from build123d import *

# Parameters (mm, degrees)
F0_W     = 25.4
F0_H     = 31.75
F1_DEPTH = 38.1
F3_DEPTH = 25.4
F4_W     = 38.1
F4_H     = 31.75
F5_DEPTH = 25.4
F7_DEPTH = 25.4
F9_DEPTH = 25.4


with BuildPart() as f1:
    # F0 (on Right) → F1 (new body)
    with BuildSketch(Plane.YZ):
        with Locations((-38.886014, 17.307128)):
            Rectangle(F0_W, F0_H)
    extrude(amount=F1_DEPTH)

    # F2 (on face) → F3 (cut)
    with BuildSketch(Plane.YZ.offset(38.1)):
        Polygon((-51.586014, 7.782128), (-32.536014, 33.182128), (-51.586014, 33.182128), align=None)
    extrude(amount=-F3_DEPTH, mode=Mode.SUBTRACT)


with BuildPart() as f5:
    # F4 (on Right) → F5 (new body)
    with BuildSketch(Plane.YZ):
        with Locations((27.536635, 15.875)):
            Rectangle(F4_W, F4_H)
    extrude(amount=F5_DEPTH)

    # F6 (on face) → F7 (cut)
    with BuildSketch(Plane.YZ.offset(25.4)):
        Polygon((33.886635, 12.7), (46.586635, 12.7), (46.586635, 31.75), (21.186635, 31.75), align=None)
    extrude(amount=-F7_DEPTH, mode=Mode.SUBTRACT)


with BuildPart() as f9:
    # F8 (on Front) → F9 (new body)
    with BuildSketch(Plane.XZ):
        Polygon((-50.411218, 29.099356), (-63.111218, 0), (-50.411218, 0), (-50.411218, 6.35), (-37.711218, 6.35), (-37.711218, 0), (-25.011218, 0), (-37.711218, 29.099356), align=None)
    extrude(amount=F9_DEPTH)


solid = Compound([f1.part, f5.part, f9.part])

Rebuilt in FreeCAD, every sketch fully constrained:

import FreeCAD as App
import Part
import Sketcher
from FreeCAD import Vector
Q = App.Units.Quantity

doc = App.newDocument("Part")
body = doc.addObject("PartDesign::Body", "Body")

# Sketch on YZ plane
sketch1 = body.newObject("Sketcher::SketchObject", "Sketch")
sketch1.AttachmentSupport = (doc.getObject("YZ_Plane"), [""])
sketch1.MapMode = "FlatFace"
sketch1.addGeometry([
    Part.LineSegment(Vector(-51.586014, 33.182128, 0), Vector(-51.586014, 1.432128, 0)),
    Part.LineSegment(Vector(-51.586014, 1.432128, 0), Vector(-26.186014, 1.432128, 0)),
    Part.LineSegment(Vector(-26.186014, 1.432128, 0), Vector(-26.186014, 33.182128, 0)),
    Part.LineSegment(Vector(-26.186014, 33.182128, 0), Vector(-51.586014, 33.182128, 0)),
], False)
sketch1.addConstraint([
    Sketcher.Constraint("Coincident", 0, 2, 1, 1),
    Sketcher.Constraint("Coincident", 1, 2, 2, 1),
    Sketcher.Constraint("Coincident", 2, 2, 3, 1),
    Sketcher.Constraint("Coincident", 3, 2, 0, 1),
    Sketcher.Constraint("Vertical", 0),
    Sketcher.Constraint("Horizontal", 1),
    Sketcher.Constraint("Vertical", 2),
    Sketcher.Constraint("Horizontal", 3),
    Sketcher.Constraint("DistanceX", 1, 1, 1, 2, Q("1 in")),
    Sketcher.Constraint("DistanceY", 0, 2, 0, 1, Q("1.25 in")),
    Sketcher.Constraint("DistanceY", -1, 1, 0, 2, 1.432128),
    Sketcher.Constraint("DistanceX", 0, 2, -1, 1, 51.586014),
])
pad1 = body.newObject("PartDesign::Pad", "Pad")
pad1.Profile = sketch1
pad1.Length = Q("1.5 in")

# Sketch on YZ plane
sketch2 = body.newObject("Sketcher::SketchObject", "Sketch001")
sketch2.AttachmentSupport = (doc.getObject("YZ_Plane"), [""])
sketch2.MapMode = "FlatFace"
sketch2.AttachmentOffset = App.Placement(Vector(0, 0, 1.5 * 25.4), App.Rotation())
sketch2.addGeometry([
    Part.LineSegment(Vector(-51.586014, 7.782128, 0), Vector(-32.536014, 33.182128, 0)),
    Part.LineSegment(Vector(-32.536014, 33.182128, 0), Vector(-51.586014, 33.182128, 0)),
    Part.LineSegment(Vector(-51.586014, 33.182128, 0), Vector(-51.586014, 7.782128, 0)),
], False)
sketch2.addConstraint([
    Sketcher.Constraint("Coincident", 0, 2, 1, 1),
    Sketcher.Constraint("Coincident", 1, 2, 2, 1),
    Sketcher.Constraint("Coincident", 2, 2, 0, 1),
    Sketcher.Constraint("Horizontal", 1),
    Sketcher.Constraint("Vertical", 2),
    Sketcher.Constraint("DistanceY", 2, 2, 2, 1, Q("1 in")),
    Sketcher.Constraint("DistanceX", 1, 2, 1, 1, Q("0.75 in")),
    Sketcher.Constraint("DistanceX", 0, 2, -1, 1, 32.536014),
    Sketcher.Constraint("DistanceY", -1, 1, 0, 2, 33.182128),
])
pocket1 = body.newObject("PartDesign::Pocket", "Pocket")
pocket1.Profile = sketch2
pocket1.Length = Q("1 in")
body2 = doc.addObject("PartDesign::Body", "Body001")

# Sketch on YZ plane
sketch3 = body2.newObject("Sketcher::SketchObject", "Sketch002")
sketch3.AttachmentSupport = (doc.getObject("YZ_Plane001"), [""])
sketch3.MapMode = "FlatFace"
sketch3.addGeometry([
    Part.LineSegment(Vector(8.486635, 31.75, 0), Vector(8.486635, 0, 0)),
    Part.LineSegment(Vector(8.486635, 0, 0), Vector(46.586635, 0, 0)),
    Part.LineSegment(Vector(46.586635, 0, 0), Vector(46.586635, 31.75, 0)),
    Part.LineSegment(Vector(46.586635, 31.75, 0), Vector(8.486635, 31.75, 0)),
], False)
sketch3.addConstraint([
    Sketcher.Constraint("Coincident", 0, 2, 1, 1),
    Sketcher.Constraint("Coincident", 1, 2, 2, 1),
    Sketcher.Constraint("Coincident", 2, 2, 3, 1),
    Sketcher.Constraint("Coincident", 3, 2, 0, 1),
    Sketcher.Constraint("Vertical", 0),
    Sketcher.Constraint("Horizontal", 1),
    Sketcher.Constraint("Vertical", 2),
    Sketcher.Constraint("Horizontal", 3),
    Sketcher.Constraint("PointOnObject", 0, 2, -1),
    Sketcher.Constraint("DistanceX", 1, 1, 1, 2, Q("1.5 in")),
    Sketcher.Constraint("DistanceY", 0, 2, 0, 1, Q("1.25 in")),
    Sketcher.Constraint("DistanceX", -1, 1, 0, 2, 8.486635),
])
pad2 = body2.newObject("PartDesign::Pad", "Pad001")
pad2.Profile = sketch3
pad2.Length = Q("1 in")

# Sketch on YZ plane
sketch4 = body2.newObject("Sketcher::SketchObject", "Sketch003")
sketch4.AttachmentSupport = (doc.getObject("YZ_Plane001"), [""])
sketch4.MapMode = "FlatFace"
sketch4.AttachmentOffset = App.Placement(Vector(0, 0, 1 * 25.4), App.Rotation())
sketch4.addGeometry([
    Part.LineSegment(Vector(33.886635, 12.7, 0), Vector(46.586635, 12.7, 0)),
    Part.LineSegment(Vector(46.586635, 12.7, 0), Vector(46.586635, 31.75, 0)),
    Part.LineSegment(Vector(46.586635, 31.75, 0), Vector(21.186635, 31.75, 0)),
    Part.LineSegment(Vector(21.186635, 31.75, 0), Vector(33.886635, 12.7, 0)),
], False)
sketch4.addConstraint([
    Sketcher.Constraint("Coincident", 0, 2, 1, 1),
    Sketcher.Constraint("Coincident", 1, 2, 2, 1),
    Sketcher.Constraint("Coincident", 2, 2, 3, 1),
    Sketcher.Constraint("Coincident", 3, 2, 0, 1),
    Sketcher.Constraint("Horizontal", 0),
    Sketcher.Constraint("Vertical", 1),
    Sketcher.Constraint("Horizontal", 2),
    Sketcher.Constraint("DistanceX", 2, 2, 2, 1, Q("1 in")),
    Sketcher.Constraint("DistanceX", 0, 1, 0, 2, Q("0.5 in")),
    Sketcher.Constraint("DistanceY", 1, 1, 1, 2, Q("0.75 in")),
    Sketcher.Constraint("DistanceY", -1, 1, 0, 2, Q("0.5 in")),
    Sketcher.Constraint("DistanceX", -1, 1, 0, 2, 46.586635),
])
pocket2 = body2.newObject("PartDesign::Pocket", "Pocket001")
pocket2.Profile = sketch4
pocket2.Length = Q("1 in")
body3 = doc.addObject("PartDesign::Body", "Body002")

# Sketch on XZ plane
sketch5 = body3.newObject("Sketcher::SketchObject", "Sketch004")
sketch5.AttachmentSupport = (doc.getObject("XZ_Plane002"), [""])
sketch5.MapMode = "FlatFace"
sketch5.addGeometry([
    Part.LineSegment(Vector(-50.411218, 29.099356, 0), Vector(-63.111218, 0, 0)),  # 0
    Part.LineSegment(Vector(-63.111218, 0, 0), Vector(-50.411218, 0, 0)),  # 1
    Part.LineSegment(Vector(-50.411218, 0, 0), Vector(-50.411218, 6.35, 0)),  # 2
    Part.LineSegment(Vector(-50.411218, 6.35, 0), Vector(-37.711218, 6.35, 0)),  # 3
    Part.LineSegment(Vector(-37.711218, 6.35, 0), Vector(-37.711218, 0, 0)),  # 4
    Part.LineSegment(Vector(-37.711218, 0, 0), Vector(-25.011218, 0, 0)),  # 5
    Part.LineSegment(Vector(-25.011218, 0, 0), Vector(-37.711218, 29.099356, 0)),  # 6
    Part.LineSegment(Vector(-37.711218, 29.099356, 0), Vector(-50.411218, 29.099356, 0)),  # 7
], False)
sketch5.addConstraint([
    Sketcher.Constraint("Coincident", 0, 2, 1, 1),
    Sketcher.Constraint("Coincident", 1, 2, 2, 1),
    Sketcher.Constraint("Coincident", 2, 2, 3, 1),
    Sketcher.Constraint("Coincident", 3, 2, 4, 1),
    Sketcher.Constraint("Coincident", 4, 2, 5, 1),
    Sketcher.Constraint("Coincident", 5, 2, 6, 1),
    Sketcher.Constraint("Coincident", 6, 2, 7, 1),
    Sketcher.Constraint("Coincident", 7, 2, 0, 1),
    Sketcher.Constraint("Horizontal", 1),
    Sketcher.Constraint("Vertical", 2),
    Sketcher.Constraint("Horizontal", 3),
    Sketcher.Constraint("Vertical", 4),
    Sketcher.Constraint("Horizontal", 5),
    Sketcher.Constraint("Horizontal", 7),
    Sketcher.Constraint("PointOnObject", 0, 2, -1),
    Sketcher.Constraint("PointOnObject", 4, 2, -1),
    Sketcher.Constraint("Vertical", 4, 2, 6, 2),
    Sketcher.Constraint("Vertical", 2, 2, 7, 2),
    Sketcher.Constraint("Equal", 1, 3),
    Sketcher.Constraint("Equal", 3, 5),
    Sketcher.Constraint("DistanceX", 1, 1, 1, 2, Q("0.5 in")),
    Sketcher.Constraint("DistanceY", 2, 1, 2, 2, Q("0.25 in")),
    Sketcher.Constraint("Distance", 0, Q("1.25 in")),
    Sketcher.Constraint("DistanceX", 3, 2, -1, 1, 37.711218),
])
pad3 = body3.newObject("PartDesign::Pad", "Pad002")
pad3.Profile = sketch5
pad3.Length = Q("1 in")

doc.recompute()
